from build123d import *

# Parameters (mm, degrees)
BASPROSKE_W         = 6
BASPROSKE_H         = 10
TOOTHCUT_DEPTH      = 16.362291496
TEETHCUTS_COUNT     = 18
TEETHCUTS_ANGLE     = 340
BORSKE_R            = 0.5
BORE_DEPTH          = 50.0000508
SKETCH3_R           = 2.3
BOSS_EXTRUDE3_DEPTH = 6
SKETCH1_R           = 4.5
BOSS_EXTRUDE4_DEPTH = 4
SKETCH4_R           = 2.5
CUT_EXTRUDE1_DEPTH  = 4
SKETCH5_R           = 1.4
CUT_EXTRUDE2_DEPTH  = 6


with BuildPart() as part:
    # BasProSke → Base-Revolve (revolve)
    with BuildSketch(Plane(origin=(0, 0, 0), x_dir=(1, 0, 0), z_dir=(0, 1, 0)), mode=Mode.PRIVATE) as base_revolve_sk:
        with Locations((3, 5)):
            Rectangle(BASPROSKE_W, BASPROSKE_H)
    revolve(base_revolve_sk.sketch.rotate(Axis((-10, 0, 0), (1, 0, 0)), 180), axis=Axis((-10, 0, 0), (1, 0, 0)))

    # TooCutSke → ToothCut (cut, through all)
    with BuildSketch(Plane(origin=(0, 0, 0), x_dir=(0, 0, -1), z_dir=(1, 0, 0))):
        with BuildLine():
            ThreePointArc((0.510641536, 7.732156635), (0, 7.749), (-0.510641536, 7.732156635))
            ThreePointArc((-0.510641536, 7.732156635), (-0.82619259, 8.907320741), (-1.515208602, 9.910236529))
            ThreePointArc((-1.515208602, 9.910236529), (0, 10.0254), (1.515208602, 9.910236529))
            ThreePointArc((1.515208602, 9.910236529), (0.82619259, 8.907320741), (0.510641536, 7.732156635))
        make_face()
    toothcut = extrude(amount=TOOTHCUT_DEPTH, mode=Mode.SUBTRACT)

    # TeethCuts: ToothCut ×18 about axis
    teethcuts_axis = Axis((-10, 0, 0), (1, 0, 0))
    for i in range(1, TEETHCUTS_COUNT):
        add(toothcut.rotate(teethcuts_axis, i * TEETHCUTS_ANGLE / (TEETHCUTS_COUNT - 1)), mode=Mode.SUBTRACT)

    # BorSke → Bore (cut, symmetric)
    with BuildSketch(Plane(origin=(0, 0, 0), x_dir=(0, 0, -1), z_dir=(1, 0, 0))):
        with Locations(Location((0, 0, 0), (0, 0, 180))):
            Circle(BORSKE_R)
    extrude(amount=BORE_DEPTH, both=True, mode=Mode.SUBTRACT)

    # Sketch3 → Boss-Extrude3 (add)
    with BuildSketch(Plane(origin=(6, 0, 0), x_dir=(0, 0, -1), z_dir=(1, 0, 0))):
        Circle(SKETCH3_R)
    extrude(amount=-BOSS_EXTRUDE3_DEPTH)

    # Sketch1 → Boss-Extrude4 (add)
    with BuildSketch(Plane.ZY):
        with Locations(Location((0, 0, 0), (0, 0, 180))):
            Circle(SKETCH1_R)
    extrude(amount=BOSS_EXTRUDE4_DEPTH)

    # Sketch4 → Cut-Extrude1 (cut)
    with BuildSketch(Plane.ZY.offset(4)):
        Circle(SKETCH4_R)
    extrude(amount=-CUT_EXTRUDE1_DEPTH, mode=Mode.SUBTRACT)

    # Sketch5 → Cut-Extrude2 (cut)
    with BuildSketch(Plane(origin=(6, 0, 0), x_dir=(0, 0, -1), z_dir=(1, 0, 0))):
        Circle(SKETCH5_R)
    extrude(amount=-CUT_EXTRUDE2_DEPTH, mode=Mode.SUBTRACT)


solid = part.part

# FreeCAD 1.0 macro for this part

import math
import FreeCAD as App
import Part
import Sketcher

V = App.Vector

doc = App.newDocument("Part")
params = doc.addObject("Spreadsheet::Sheet", "Params")
for row, (alias, value) in enumerate([
    ("sketch1_width", "6 mm"),
    ("sketch1_height", "10 mm"),
    ("revolution_angle", "360 deg"),
    ("sketch2_radius", "3.6 mm"),
    ("sketch3_diameter", "1 mm"),
    ("pocket2_length", "100.000102 mm"),
    ("sketch4_diameter", "4.6 mm"),
    ("pad1_length", "6 mm"),
    ("sketch5_diameter", "9 mm"),
    ("pad2_length", "4 mm"),
    ("sketch6_diameter", "5 mm"),
    ("pocket3_length", "4 mm"),
    ("sketch7_diameter", "2.8 mm"),
    ("pocket4_length", "6 mm"),
], start=1):
    params.set(f"A{row}", alias)
    params.set(f"B{row}", "=" + value)
    params.setAlias(f"B{row}", alias)

body = doc.addObject("PartDesign::Body", "Body")

sketch1 = body.newObject("Sketcher::SketchObject", "Sketch")
sketch1.AttachmentSupport = (doc.getObject("XZ_Plane"), [""])
sketch1.MapMode = "FlatFace"
sketch1.addGeometry([
    Part.LineSegment(V(0, -10, 0), V(0, 0, 0)),
    Part.LineSegment(V(0, 0, 0), V(6, 0, 0)),
    Part.LineSegment(V(6, 0, 0), V(6, -10, 0)),
    Part.LineSegment(V(6, -10, 0), V(0, -10, 0)),
], False)
sketch1.addConstraint([
    Sketcher.Constraint("Coincident", 0, 2, 1, 1),
    Sketcher.Constraint("Coincident", 1, 2, 2, 1),
    Sketcher.Constraint("Coincident", 2, 2, 3, 1),
    Sketcher.Constraint("Coincident", 3, 2, 0, 1),
    Sketcher.Constraint("Vertical", 0),
    Sketcher.Constraint("Horizontal", 1),
    Sketcher.Constraint("Vertical", 2),
    Sketcher.Constraint("Horizontal", 3),
    Sketcher.Constraint("Coincident", 0, 2, -1, 1),
    Sketcher.Constraint("DistanceX", 1, 1, 1, 2, 6.0),
    Sketcher.Constraint("DistanceY", 0, 1, 0, 2, 10.0),
])
sketch1.setExpression("Constraints[9]", "Params.sketch1_width")
sketch1.setExpression("Constraints[10]", "Params.sketch1_height")
revolution = body.newObject("PartDesign::Revolution", "Revolution")
revolution.Profile = sketch1
revolution.ReferenceAxis = (sketch1, ["H_Axis"])
revolution.setExpression("Angle", "Params.revolution_angle")

sketch2 = body.newObject("Sketcher::SketchObject", "Sketch001")
sketch2.AttachmentSupport = (doc.getObject("YZ_Plane"), [""])
sketch2.MapMode = "FlatFace"
sketch2.addGeometry([
    Part.ArcOfCircle(Part.Circle(V(0, 0, 0), V(0, 0, 1), 7.7), math.radians(-3.78), math.radians(3.78)),
    Part.ArcOfCircle(Part.Circle(V(7.4, -4.1, 0), V(0, 0, 1), 3.6), math.radians(46), math.radians(85)),
    Part.ArcOfCircle(Part.Circle(V(0, 0, 0), V(0, 0, 1), 10), math.radians(-8.69), math.radians(8.69)),
    Part.ArcOfCircle(Part.Circle(V(7.4, 4.1, 0), V(0, 0, 1), 3.6), math.radians(-85), math.radians(-46)),
], False)
sketch2.addConstraint([
    Sketcher.Constraint("Coincident", 0, 1, 1, 2),
    Sketcher.Constraint("Coincident", 1, 1, 2, 1),
    Sketcher.Constraint("Coincident", 2, 2, 3, 2),
    Sketcher.Constraint("Coincident", 3, 1, 0, 2),
    Sketcher.Constraint("Coincident", 0, 3, -1, 1),
    Sketcher.Constraint("Coincident", 2, 3, -1, 1),
    Sketcher.Constraint("Equal", 1, 3),
    Sketcher.Constraint("Symmetric", 1, 3, 3, 3, -1),
    Sketcher.Constraint("Radius", 1, 3.6),
    Sketcher.Constraint("Radius", 0, 7.749),
    Sketcher.Constraint("Radius", 2, 10.0254),
    Sketcher.Constraint("DistanceX", -1, 1, 1, 3, 7.399578),
    Sketcher.Constraint("DistanceY", 0, 1, -1, 1, 0.510642),
])
sketch2.setExpression("Constraints[8]", "Params.sketch2_radius")
pocket1 = body.newObject("PartDesign::Pocket", "Pocket")
pocket1.Profile = sketch2
pocket1.Type = "ThroughAll"
pocket1.Reversed = True
doc.recompute()

polarpattern = body.newObject("PartDesign::PolarPattern", "PolarPattern")
polarpattern.Originals = [pocket1]
polarpattern.Axis = (doc.getObject("X_Axis"), [""])
polarpattern.Angle = 360
polarpattern.Occurrences = 18
body.Tip = polarpattern

sketch3 = body.newObject("Sketcher::SketchObject", "Sketch002")
sketch3.AttachmentSupport = (doc.getObject("YZ_Plane"), [""])
sketch3.MapMode = "FlatFace"
sketch3.addGeometry(Part.Circle(V(0, 0, 0), V(0, 0, 1), 0.5), False)
sketch3.addConstraint([
    Sketcher.Constraint("Coincident", 0, 3, -1, 1),
    Sketcher.Constraint("Diameter", 0, 1.0),
])
sketch3.setExpression("Constraints[1]", "Params.sketch3_diameter")
pocket2 = body.newObject("PartDesign::Pocket", "Pocket001")
pocket2.Profile = sketch3
pocket2.setExpression("Length", "Params.pocket2_length")
pocket2.Midplane = True

sketch4 = body.newObject("Sketcher::SketchObject", "Sketch003")
sketch4.AttachmentSupport = (doc.getObject("YZ_Plane"), [""])
sketch4.MapMode = "FlatFace"
sketch4.AttachmentOffset = App.Placement(V(0, 0, 6), App.Rotation())
sketch4.addGeometry(Part.Circle(V(0, 0, 0), V(0, 0, 1), 2.3), False)
sketch4.addConstraint([
    Sketcher.Constraint("Coincident", 0, 3, -1, 1),
    Sketcher.Constraint("Diameter", 0, 4.6),
])
sketch4.setExpression("Constraints[1]", "Params.sketch4_diameter")
pad1 = body.newObject("PartDesign::Pad", "Pad")
pad1.Profile = sketch4
pad1.setExpression("Length", "Params.pad1_length")
pad1.Reversed = True

sketch5 = body.newObject("Sketcher::SketchObject", "Sketch004")
sketch5.AttachmentSupport = (doc.getObject("YZ_Plane"), [""])
sketch5.MapMode = "FlatFace"
sketch5.addGeometry(Part.Circle(V(0, 0, 0), V(0, 0, 1), 4.5), False)
sketch5.addConstraint([
    Sketcher.Constraint("Coincident", 0, 3, -1, 1),
    Sketcher.Constraint("Diameter", 0, 9.0),
])
sketch5.setExpression("Constraints[1]", "Params.sketch5_diameter")
pad2 = body.newObject("PartDesign::Pad", "Pad001")
pad2.Profile = sketch5
pad2.setExpression("Length", "Params.pad2_length")
pad2.Reversed = True

sketch6 = body.newObject("Sketcher::SketchObject", "Sketch005")
sketch6.AttachmentSupport = (doc.getObject("YZ_Plane"), [""])
sketch6.MapMode = "FlatFace"
sketch6.AttachmentOffset = App.Placement(V(0, 0, -4), App.Rotation())
sketch6.addGeometry(Part.Circle(V(0, 0, 0), V(0, 0, 1), 2.5), False)
sketch6.addConstraint([
    Sketcher.Constraint("Coincident", 0, 3, -1, 1),
    Sketcher.Constraint("Diameter", 0, 5.0),
])
sketch6.setExpression("Constraints[1]", "Params.sketch6_diameter")
pocket3 = body.newObject("PartDesign::Pocket", "Pocket002")
pocket3.Profile = sketch6
pocket3.setExpression("Length", "Params.pocket3_length")
pocket3.Reversed = True

sketch7 = body.newObject("Sketcher::SketchObject", "Sketch006")
sketch7.AttachmentSupport = (doc.getObject("YZ_Plane"), [""])
sketch7.MapMode = "FlatFace"
sketch7.AttachmentOffset = App.Placement(V(0, 0, 6), App.Rotation())
sketch7.addGeometry(Part.Circle(V(0, 0, 0), V(0, 0, 1), 1.4), False)
sketch7.addConstraint([
    Sketcher.Constraint("Coincident", 0, 3, -1, 1),
    Sketcher.Constraint("Diameter", 0, 2.8),
])
sketch7.setExpression("Constraints[1]", "Params.sketch7_diameter")
pocket4 = body.newObject("PartDesign::Pocket", "Pocket003")
pocket4.Profile = sketch7
pocket4.setExpression("Length", "Params.pocket4_length")

doc.recompute()
